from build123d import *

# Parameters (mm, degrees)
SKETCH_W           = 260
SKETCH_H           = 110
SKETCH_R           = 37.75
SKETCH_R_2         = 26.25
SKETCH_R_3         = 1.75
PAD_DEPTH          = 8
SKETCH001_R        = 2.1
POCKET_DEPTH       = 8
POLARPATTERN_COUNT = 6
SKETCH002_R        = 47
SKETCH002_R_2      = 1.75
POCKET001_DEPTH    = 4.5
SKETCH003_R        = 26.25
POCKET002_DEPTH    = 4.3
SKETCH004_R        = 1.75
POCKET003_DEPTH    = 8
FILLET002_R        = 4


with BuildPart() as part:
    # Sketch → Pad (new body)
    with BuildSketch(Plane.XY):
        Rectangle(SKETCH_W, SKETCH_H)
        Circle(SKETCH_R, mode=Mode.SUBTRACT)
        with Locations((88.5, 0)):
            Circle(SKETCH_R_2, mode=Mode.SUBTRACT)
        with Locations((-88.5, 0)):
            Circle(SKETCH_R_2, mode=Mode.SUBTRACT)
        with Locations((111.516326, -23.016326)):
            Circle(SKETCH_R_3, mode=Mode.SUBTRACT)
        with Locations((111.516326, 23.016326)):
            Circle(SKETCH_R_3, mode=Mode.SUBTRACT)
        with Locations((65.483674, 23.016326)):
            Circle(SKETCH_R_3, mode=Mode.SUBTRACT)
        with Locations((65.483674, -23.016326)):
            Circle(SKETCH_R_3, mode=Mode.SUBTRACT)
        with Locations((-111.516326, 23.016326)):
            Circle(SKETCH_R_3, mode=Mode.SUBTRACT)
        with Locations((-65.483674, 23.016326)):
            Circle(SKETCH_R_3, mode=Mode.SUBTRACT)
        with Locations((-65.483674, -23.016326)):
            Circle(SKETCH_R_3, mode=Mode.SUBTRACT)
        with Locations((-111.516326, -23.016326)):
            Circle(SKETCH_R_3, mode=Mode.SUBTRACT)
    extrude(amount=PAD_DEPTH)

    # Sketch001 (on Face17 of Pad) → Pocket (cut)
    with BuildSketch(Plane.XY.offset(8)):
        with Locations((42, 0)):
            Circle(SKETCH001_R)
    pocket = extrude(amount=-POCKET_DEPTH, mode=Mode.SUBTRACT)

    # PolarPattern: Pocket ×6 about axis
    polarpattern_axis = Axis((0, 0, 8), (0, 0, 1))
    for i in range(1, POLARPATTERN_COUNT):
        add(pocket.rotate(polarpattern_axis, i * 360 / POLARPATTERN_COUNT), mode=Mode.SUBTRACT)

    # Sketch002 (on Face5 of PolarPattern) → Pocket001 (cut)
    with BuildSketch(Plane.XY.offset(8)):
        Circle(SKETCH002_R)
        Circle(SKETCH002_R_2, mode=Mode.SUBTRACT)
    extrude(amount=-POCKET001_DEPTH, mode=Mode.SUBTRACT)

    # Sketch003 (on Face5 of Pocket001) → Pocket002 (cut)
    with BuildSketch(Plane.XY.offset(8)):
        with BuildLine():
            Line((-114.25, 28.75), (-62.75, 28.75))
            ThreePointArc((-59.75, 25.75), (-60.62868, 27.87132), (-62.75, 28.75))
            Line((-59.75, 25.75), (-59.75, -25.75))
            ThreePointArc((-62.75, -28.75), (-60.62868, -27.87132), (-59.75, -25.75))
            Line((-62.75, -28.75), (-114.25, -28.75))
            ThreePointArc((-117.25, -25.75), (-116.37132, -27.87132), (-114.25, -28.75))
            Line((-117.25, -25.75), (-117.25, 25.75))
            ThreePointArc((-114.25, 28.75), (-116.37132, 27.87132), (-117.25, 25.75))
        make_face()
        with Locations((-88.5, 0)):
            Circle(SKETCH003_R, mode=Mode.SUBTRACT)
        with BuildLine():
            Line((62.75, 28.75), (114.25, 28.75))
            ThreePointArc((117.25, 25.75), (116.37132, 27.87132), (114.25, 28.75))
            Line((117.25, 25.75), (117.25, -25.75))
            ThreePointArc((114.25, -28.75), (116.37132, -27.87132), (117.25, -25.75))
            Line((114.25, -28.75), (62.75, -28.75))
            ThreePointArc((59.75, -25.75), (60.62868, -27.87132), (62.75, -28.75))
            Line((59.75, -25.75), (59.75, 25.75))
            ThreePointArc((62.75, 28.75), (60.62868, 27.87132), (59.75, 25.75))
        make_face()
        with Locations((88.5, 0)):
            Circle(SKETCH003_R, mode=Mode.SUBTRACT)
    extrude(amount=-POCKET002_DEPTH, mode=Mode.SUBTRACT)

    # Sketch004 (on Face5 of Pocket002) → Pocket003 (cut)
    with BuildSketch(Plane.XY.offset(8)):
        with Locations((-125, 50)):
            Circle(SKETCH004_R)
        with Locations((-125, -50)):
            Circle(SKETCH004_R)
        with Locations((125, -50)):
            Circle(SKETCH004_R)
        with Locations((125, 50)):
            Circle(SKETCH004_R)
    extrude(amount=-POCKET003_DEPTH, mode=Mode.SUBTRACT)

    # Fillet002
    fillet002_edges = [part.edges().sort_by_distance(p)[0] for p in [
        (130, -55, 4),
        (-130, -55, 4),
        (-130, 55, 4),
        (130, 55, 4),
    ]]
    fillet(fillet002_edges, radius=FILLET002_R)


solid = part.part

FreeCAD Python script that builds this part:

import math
import FreeCAD as App
import Part
import Sketcher
from FreeCAD import Vector


def edges_at(feature, points):
    """Names of the edges that pass closest to the given points."""
    edges = feature.Shape.Edges
    near = lambda p: min(range(len(edges)), key=lambda i: edges[i].distToShape(Part.Vertex(*p))[0])
    return sorted({f"Edge{near(p) + 1}" for p in points})


def add_polygon(sketch, points):
    """Adds a closed chain of lines whose ends are joined by coincident constraints."""
    first, n = sketch.GeometryCount, len(points)
    for a, b in zip(points, points[1:] + points[:1]):
        sketch.addGeometry(Part.LineSegment(App.Vector(*a, 0), App.Vector(*b, 0)), False)
    for i in range(n):
        sketch.addConstraint(Sketcher.Constraint("Coincident", first + i, 2, first + (i + 1) % n, 1))

doc = App.newDocument("Part")
params = doc.addObject("Spreadsheet::Sheet", "Params")
for row, (alias, value) in enumerate([
    ("sketch1_diameter", "3.5 mm"),
    ("sketch1_diameter2", "52.5 mm"),
    ("sketch1_diameter3", "75.5 mm"),
    ("sketch1_width", "260 mm"),
    ("sketch1_height", "110 mm"),
    ("pad1_length", "8 mm"),
    ("sketch2_diameter", "4.2 mm"),
    ("pocket1_length", "8 mm"),
    ("sketch3_diameter", "94 mm"),
    ("sketch3_diameter2", "3.5 mm"),
    ("pocket2_length", "4.5 mm"),
    ("sketch4_radius", "3.000001 mm"),
    ("sketch4_diameter", "52.5 mm"),
    ("sketch4_width", "51.5 mm"),
    ("pocket3_length", "4.3 mm"),
    ("sketch5_diameter", "3.5 mm"),
    ("pocket4_length", "8 mm"),
    ("fillet_radius", "4 mm"),
], start=1):
    params.set(f"A{row}", alias)
    params.set(f"B{row}", "=" + value)
    params.setAlias(f"B{row}", alias)

body = doc.addObject("PartDesign::Body", "Body")

# Sketch on XY plane
sketch1 = doc.addObject("Sketcher::SketchObject", "Sketch")
body.addObject(sketch1)
sketch1.AttachmentSupport = (doc.XY_Plane, [""])
sketch1.MapMode = "FlatFace"
add_polygon(sketch1, [(-130, 55), (-130, -55), (130, -55), (130, 55)])  # lines 0-3
sketch1.addGeometry(Part.Circle(Vector(-111.5, -23, 0), Vector(0, 0, 1), 1.8), False)  # 4
sketch1.addGeometry(Part.Circle(Vector(-65.5, -23, 0), Vector(0, 0, 1), 1.8), False)  # 5
sketch1.addGeometry(Part.Circle(Vector(65.5, -23, 0), Vector(0, 0, 1), 1.8), False)  # 6
sketch1.addGeometry(Part.Circle(Vector(111.5, -23, 0), Vector(0, 0, 1), 1.8), False)  # 7
sketch1.addGeometry(Part.Circle(Vector(-88.5, 0, 0), Vector(0, 0, 1), 26.2), False)  # 8
sketch1.addGeometry(Part.Circle(Vector(-111.5, 23, 0), Vector(0, 0, 1), 1.8), False)  # 9
sketch1.addGeometry(Part.Circle(Vector(-65.5, 23, 0), Vector(0, 0, 1), 1.8), False)  # 10
sketch1.addGeometry(Part.Circle(Vector(0, 0, 0), Vector(0, 0, 1), 37.8), False)  # 11
sketch1.addGeometry(Part.Circle(Vector(88.5, 0, 0), Vector(0, 0, 1), 26.2), False)  # 12
sketch1.addGeometry(Part.Circle(Vector(65.5, 23, 0), Vector(0, 0, 1), 1.8), False)  # 13
sketch1.addGeometry(Part.Circle(Vector(111.5, 23, 0), Vector(0, 0, 1), 1.8), False)  # 14
sketch1.addConstraint([
    Sketcher.Constraint("Vertical", 0),
    Sketcher.Constraint("Horizontal", 1),
    Sketcher.Constraint("Vertical", 2),
    Sketcher.Constraint("Horizontal", 3),
    Sketcher.Constraint("Coincident", 11, 3, -1, 1),
    Sketcher.Constraint("Equal", 4, 5),
    Sketcher.Constraint("Equal", 5, 6),
    Sketcher.Constraint("Equal", 6, 7),
    Sketcher.Constraint("Equal", 7, 9),
    Sketcher.Constraint("Equal", 9, 10),
    Sketcher.Constraint("Equal", 8, 12),
    Sketcher.Constraint("Equal", 10, 13),
    Sketcher.Constraint("Equal", 13, 14),
    Sketcher.Constraint("Symmetric", 7, 3, 9, 3, -1, 1),
    Sketcher.Constraint("Symmetric", 6, 3, 10, 3, -1, 1),
    Sketcher.Constraint("Symmetric", 8, 3, 12, 3, -1, 1),
    Sketcher.Constraint("Symmetric", 5, 3, 13, 3, -1, 1),
    Sketcher.Constraint("Symmetric", 4, 3, 14, 3, -1, 1),
    Sketcher.Constraint("Symmetric", 0, 2, 2, 2, -1, 1),
    Sketcher.Constraint("Symmetric", 5, 3, 6, 3, -2),
    Sketcher.Constraint("Symmetric", 4, 3, 7, 3, -2),
    Sketcher.Constraint("PointOnObject", 8, 3, -1),
    Sketcher.Constraint("Horizontal", 4, 3, 5, 3),
    Sketcher.Constraint("Diameter", 4, 3.5),
    Sketcher.Constraint("Diameter", 8, 52.5),
    Sketcher.Constraint("Diameter", 11, 75.5),
    Sketcher.Constraint("DistanceX", 1, 1, 1, 2, 260.0),
    Sketcher.Constraint("DistanceY", 0, 2, 0, 1, 110.0),
    Sketcher.Constraint("DistanceX", 4, 3, 6, 3, 177.0),
    Sketcher.Constraint("DistanceX", 8, 3, -1, 1, 88.5),
    Sketcher.Constraint("DistanceX", 4, 3, -1, 1, 111.516326),
    Sketcher.Constraint("DistanceY", 4, 3, -1, 1, 23.016326),
])
sketch1.setExpression("Constraints[27]", "Params.sketch1_diameter")
sketch1.setExpression("Constraints[28]", "Params.sketch1_diameter2")
sketch1.setExpression("Constraints[29]", "Params.sketch1_diameter3")
sketch1.setExpression("Constraints[30]", "Params.sketch1_width")
sketch1.setExpression("Constraints[31]", "Params.sketch1_height")
pad1 = doc.addObject("PartDesign::Pad", "Pad")
body.addObject(pad1)
pad1.Profile = sketch1
pad1.setExpression("Length", "Params.pad1_length")

# Sketch on XY plane
sketch2 = doc.addObject("Sketcher::SketchObject", "Sketch001")
body.addObject(sketch2)
sketch2.AttachmentSupport = (doc.XY_Plane, [""])
sketch2.MapMode = "FlatFace"
sketch2.AttachmentOffset = App.Placement(Vector(0, 0, 8), App.Rotation())
sketch2.addGeometry(Part.Circle(Vector(42, 0, 0), Vector(0, 0, 1), 2.1), False)
sketch2.addConstraint([
    Sketcher.Constraint("PointOnObject", 0, 3, -1),
    Sketcher.Constraint("Diameter", 0, 4.2),
    Sketcher.Constraint("DistanceX", -1, 1, 0, 3, 42.0),
])
sketch2.setExpression("Constraints[1]", "Params.sketch2_diameter")
pocket1 = doc.addObject("PartDesign::Pocket", "Pocket")
body.addObject(pocket1)
pocket1.Profile = sketch2
pocket1.setExpression("Length", "Params.pocket1_length")
doc.recompute()

polarpattern = doc.addObject("PartDesign::PolarPattern", "PolarPattern")
body.addObject(polarpattern)
polarpattern.Originals = [pocket1]
polarpattern.Axis = (doc.Z_Axis, [""])
polarpattern.Angle = 360
polarpattern.Occurrences = 6
body.Tip = polarpattern

# Sketch on XY plane
sketch3 = doc.addObject("Sketcher::SketchObject", "Sketch002")
body.addObject(sketch3)
sketch3.AttachmentSupport = (doc.XY_Plane, [""])
sketch3.MapMode = "FlatFace"
sketch3.AttachmentOffset = App.Placement(Vector(0, 0, 8), App.Rotation())
sketch3.addGeometry([
    Part.Circle(Vector(0, 0, 0), Vector(0, 0, 1), 47),
    Part.Circle(Vector(0, 0, 0), Vector(0, 0, 1), 1.8),
], False)
sketch3.addConstraint([
    Sketcher.Constraint("Coincident", 0, 3, -1, 1),
    Sketcher.Constraint("Coincident", 1, 3, -1, 1),
    Sketcher.Constraint("Diameter", 0, 94.0),
    Sketcher.Constraint("Diameter", 1, 3.5),
])
sketch3.setExpression("Constraints[2]", "Params.sketch3_diameter")
sketch3.setExpression("Constraints[3]", "Params.sketch3_diameter2")
pocket2 = doc.addObject("PartDesign::Pocket", "Pocket001")
body.addObject(pocket2)
pocket2.Profile = sketch3
pocket2.setExpression("Length", "Params.pocket2_length")

# Sketch on XY plane
sketch4 = doc.addObject("Sketcher::SketchObject", "Sketch003")
body.addObject(sketch4)
sketch4.AttachmentSupport = (doc.XY_Plane, [""])
sketch4.MapMode = "FlatFace"
sketch4.AttachmentOffset = App.Placement(Vector(0, 0, 8), App.Rotation())
sketch4.addGeometry([
    Part.LineSegment(Vector(-62.8, 28.8, 0), Vector(-114.2, 28.8, 0)),  # 0
    Part.ArcOfCircle(Part.Circle(Vector(-114.2, 25.7, 0), Vector(0, 0, 1), 3), math.radians(90), math.radians(180)),  # 1
    Part.LineSegment(Vector(-117.2, 25.8, 0), Vector(-117.2, -25.8, 0)),  # 2
    Part.ArcOfCircle(Part.Circle(Vector(-114.2, -25.7, 0), Vector(0, 0, 1), 3), math.radians(-180), math.radians(-90)),  # 3
    Part.LineSegment(Vector(-114.2, -28.8, 0), Vector(-62.8, -28.8, 0)),  # 4
    Part.ArcOfCircle(Part.Circle(Vector(-62.8, -25.7, 0), Vector(0, 0, 1), 3), math.radians(-90), math.radians(0)),  # 5
    Part.LineSegment(Vector(-59.8, -25.8, 0), Vector(-59.8, 25.8, 0)),  # 6
    Part.ArcOfCircle(Part.Circle(Vector(-62.8, 25.7, 0), Vector(0, 0, 1), 3), math.radians(0), math.radians(90)),  # 7
    Part.Circle(Vector(-88.5, 0, 0), Vector(0, 0, 1), 26.2),  # 8
    Part.LineSegment(Vector(114.2, 28.8, 0), Vector(62.8, 28.8, 0)),  # 9
    Part.ArcOfCircle(Part.Circle(Vector(62.8, 25.7, 0), Vector(0, 0, 1), 3), math.radians(90), math.radians(180)),  # 10
    Part.LineSegment(Vector(59.8, 25.8, 0), Vector(59.8, -25.8, 0)),  # 11
    Part.ArcOfCircle(Part.Circle(Vector(62.8, -25.7, 0), Vector(0, 0, 1), 3), math.radians(-180), math.radians(-90)),  # 12
    Part.LineSegment(Vector(62.8, -28.8, 0), Vector(114.2, -28.8, 0)),  # 13
    Part.ArcOfCircle(Part.Circle(Vector(114.2, -25.7, 0), Vector(0, 0, 1), 3), math.radians(-90), math.radians(0)),  # 14
    Part.LineSegment(Vector(117.2, -25.8, 0), Vector(117.2, 25.8, 0)),  # 15
    Part.ArcOfCircle(Part.Circle(Vector(114.2, 25.7, 0), Vector(0, 0, 1), 3), math.radians(0), math.radians(90)),  # 16
    Part.Circle(Vector(88.5, 0, 0), Vector(0, 0, 1), 26.2),  # 17
], False)
sketch4.addConstraint([
    Sketcher.Constraint("Tangent", 0, 2, 1, 1),
    Sketcher.Constraint("Tangent", 1, 2, 2, 1),
    Sketcher.Constraint("Tangent", 2, 2, 3, 1),
    Sketcher.Constraint("Tangent", 3, 2, 4, 1),
    Sketcher.Constraint("Tangent", 4, 2, 5, 1),
    Sketcher.Constraint("Tangent", 5, 2, 6, 1),
    Sketcher.Constraint("Tangent", 6, 2, 7, 1),
    Sketcher.Constraint("Tangent", 7, 2, 0, 1),
    Sketcher.Constraint("Tangent", 9, 2, 10, 1),
    Sketcher.Constraint("Tangent", 10, 2, 11, 1),
    Sketcher.Constraint("Tangent", 11, 2, 12, 1),
    Sketcher.Constraint("Tangent", 12, 2, 13, 1),
    Sketcher.Constraint("Tangent", 13, 2, 14, 1),
    Sketcher.Constraint("Tangent", 14, 2, 15, 1),
    Sketcher.Constraint("Tangent", 15, 2, 16, 1),
    Sketcher.Constraint("Tangent", 16, 2, 9, 1),
    Sketcher.Constraint("Horizontal", 0),
    Sketcher.Constraint("Vertical", 2),
    Sketcher.Constraint("Horizontal", 4),
    Sketcher.Constraint("Vertical", 6),
    Sketcher.Constraint("Horizontal", 9),
    Sketcher.Constraint("Vertical", 11),
    Sketcher.Constraint("Horizontal", 13),
    Sketcher.Constraint("Vertical", 15),
    Sketcher.Constraint("Equal", 1, 3),
    Sketcher.Constraint("Equal", 3, 5),
    Sketcher.Constraint("Equal", 5, 7),
    Sketcher.Constraint("Equal", 7, 10),
    Sketcher.Constraint("Equal", 10, 12),
    Sketcher.Constraint("Equal", 12, 14),
    Sketcher.Constraint("Equal", 14, 16),
    Sketcher.Constraint("Equal", 8, 17),
    Sketcher.Constraint("Symmetric", 5, 3, 10, 3, -1, 1),
    Sketcher.Constraint("Symmetric", 1, 3, 14, 3, -1, 1),
    Sketcher.Constraint("Symmetric", 8, 3, 17, 3, -1, 1),
    Sketcher.Constraint("PointOnObject", 8, 3, -1),
    Sketcher.Constraint("Horizontal", 7, 3, 10, 3),
    Sketcher.Constraint("Equal", 13, 2),
    Sketcher.Constraint("Radius", 1, 3.000001),
    Sketcher.Constraint("Diameter", 8, 52.5),
    Sketcher.Constraint("DistanceX", 0, 2, 0, 1, 51.5),
    Sketcher.Constraint("DistanceX", 1, 3, 10, 3, 177.0),
    Sketcher.Constraint("DistanceX", 8, 3, -1, 1, 88.5),
])
sketch4.setExpression("Constraints[38]", "Params.sketch4_radius")
sketch4.setExpression("Constraints[39]", "Params.sketch4_diameter")
sketch4.setExpression("Constraints[40]", "Params.sketch4_width")
pocket3 = doc.addObject("PartDesign::Pocket", "Pocket002")
body.addObject(pocket3)
pocket3.Profile = sketch4
pocket3.setExpression("Length", "Params.pocket3_length")

# Sketch on XY plane
sketch5 = doc.addObject("Sketcher::SketchObject", "Sketch004")
body.addObject(sketch5)
sketch5.AttachmentSupport = (doc.XY_Plane, [""])
sketch5.MapMode = "FlatFace"
sketch5.AttachmentOffset = App.Placement(Vector(0, 0, 8), App.Rotation())
sketch5.addGeometry([
    Part.Circle(Vector(-125, 50, 0), Vector(0, 0, 1), 1.8),
    Part.Circle(Vector(-125, -50, 0), Vector(0, 0, 1), 1.8),
    Part.Circle(Vector(125, -50, 0), Vector(0, 0, 1), 1.8),
    Part.Circle(Vector(125, 50, 0), Vector(0, 0, 1), 1.8),
], False)
sketch5.addConstraint([
    Sketcher.Constraint("Equal", 0, 1),
    Sketcher.Constraint("Equal", 1, 2),
    Sketcher.Constraint("Equal", 2, 3),
    Sketcher.Constraint("Symmetric", 0, 3, 2, 3, -1, 1),
    Sketcher.Constraint("Symmetric", 1, 3, 3, 3, -1, 1),
    Sketcher.Constraint("Symmetric", 1, 3, 2, 3, -2),
    Sketcher.Constraint("Diameter", 0, 3.5),
    Sketcher.Constraint("DistanceX", 0, 3, -1, 1, 125.0),
    Sketcher.Constraint("DistanceY", -1, 1, 0, 3, 50.0),
])
sketch5.setExpression("Constraints[6]", "Params.sketch5_diameter")
pocket4 = doc.addObject("PartDesign::Pocket", "Pocket003")
body.addObject(pocket4)
pocket4.Profile = sketch5
pocket4.setExpression("Length", "Params.pocket4_length")
doc.recompute()

fillet = doc.addObject("PartDesign::Fillet", "Fillet")
body.addObject(fillet)
fillet.Base = (pocket4, edges_at(pocket4, [
    (130, -55, 4),
    (-130, -55, 4),
    (-130, 55, 4),
    (130, 55, 4),
]))
fillet.setExpression("Radius", "Params.fillet_radius")

doc.recompute()
